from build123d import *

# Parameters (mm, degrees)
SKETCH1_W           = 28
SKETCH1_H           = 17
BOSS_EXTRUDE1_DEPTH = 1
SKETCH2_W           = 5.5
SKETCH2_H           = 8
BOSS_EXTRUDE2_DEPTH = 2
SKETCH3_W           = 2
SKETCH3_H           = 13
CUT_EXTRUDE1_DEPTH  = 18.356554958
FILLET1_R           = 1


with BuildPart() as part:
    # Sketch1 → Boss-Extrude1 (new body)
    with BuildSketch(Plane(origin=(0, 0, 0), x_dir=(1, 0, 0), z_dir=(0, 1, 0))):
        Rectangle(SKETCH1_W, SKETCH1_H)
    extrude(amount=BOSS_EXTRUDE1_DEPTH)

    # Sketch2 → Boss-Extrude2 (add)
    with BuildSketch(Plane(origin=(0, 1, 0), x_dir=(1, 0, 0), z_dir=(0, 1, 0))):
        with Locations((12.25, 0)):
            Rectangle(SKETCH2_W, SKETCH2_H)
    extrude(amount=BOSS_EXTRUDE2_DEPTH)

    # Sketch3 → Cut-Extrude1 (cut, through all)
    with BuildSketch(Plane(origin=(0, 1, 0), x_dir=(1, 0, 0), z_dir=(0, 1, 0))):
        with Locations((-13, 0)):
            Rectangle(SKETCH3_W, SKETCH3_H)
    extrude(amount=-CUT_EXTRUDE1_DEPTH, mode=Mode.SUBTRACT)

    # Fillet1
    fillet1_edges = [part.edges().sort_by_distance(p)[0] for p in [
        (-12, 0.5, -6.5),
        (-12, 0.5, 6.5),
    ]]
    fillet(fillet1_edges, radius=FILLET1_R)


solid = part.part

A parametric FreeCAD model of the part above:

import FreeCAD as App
import Part
import Sketcher
from FreeCAD import Vector
Q = App.Units.Quantity


def edges_at(feature, points):
    """Names of the edges that pass closest to the given points."""
    edges = feature.Shape.Edges
    near = lambda p: min(range(len(edges)), key=lambda i: edges[i].distToShape(Part.Vertex(*p))[0])
    return sorted({f"Edge{near(p) + 1}" for p in points})

doc = App.newDocument("Part")
params = doc.addObject("Spreadsheet::Sheet", "Params")
for row, (alias, value) in enumerate([
    ("sketch1_width", "28 mm"),
    ("sketch1_height", "17 mm"),
    ("pad1_length", "1 mm"),
    ("sketch2_height", "8 mm"),
    ("sketch2_width", "5.5 mm"),
    ("pad2_length", "2 mm"),
    ("sketch3_width", "2 mm"),
    ("sketch3_height", "13 mm"),
    ("fillet_radius", "1 mm"),
], start=1):
    params.set(f"A{row}", alias)
    params.set(f"B{row}", "=" + value)
    params.setAlias(f"B{row}", alias)

body = doc.addObject("PartDesign::Body", "Body")

# Sketch on XZ plane
sketch1 = body.newObject("Sketcher::SketchObject", "Sketch")
sketch1.AttachmentSupport = (doc.getObject("XZ_Plane"), [""])
sketch1.MapMode = "FlatFace"
sketch1.addGeometry([
    Part.LineSegment(Vector(-14, -8, 0), Vector(-14, 8, 0)),
    Part.LineSegment(Vector(-14, 8, 0), Vector(14, 8, 0)),
    Part.LineSegment(Vector(14, 8, 0), Vector(14, -8, 0)),
    Part.LineSegment(Vector(14, -8, 0), Vector(-14, -8, 0)),
], False)
sketch1.addConstraint([
    Sketcher.Constraint("Coincident", 0, 2, 1, 1),
    Sketcher.Constraint("Coincident", 1, 2, 2, 1),
    Sketcher.Constraint("Coincident", 2, 2, 3, 1),
    Sketcher.Constraint("Coincident", 3, 2, 0, 1),
    Sketcher.Constraint("Vertical", 0),
    Sketcher.Constraint("Horizontal", 1),
    Sketcher.Constraint("Vertical", 2),
    Sketcher.Constraint("Horizontal", 3),
    Sketcher.Constraint("Symmetric", 0, 2, 2, 2, -1, 1),
    Sketcher.Constraint("DistanceX", 1, 1, 1, 2, Q("28 mm")),
    Sketcher.Constraint("DistanceY", 0, 1, 0, 2, Q("17 mm")),
])
sketch1.setExpression("Constraints[9]", "Params.sketch1_width")
sketch1.setExpression("Constraints[10]", "Params.sketch1_height")
pad1 = body.newObject("PartDesign::Pad", "Pad")
pad1.Profile = sketch1
pad1.setExpression("Length", "Params.pad1_length")
pad1.Reversed = True

# Sketch on XZ plane
sketch2 = body.newObject("Sketcher::SketchObject", "Sketch001")
sketch2.AttachmentSupport = (doc.getObject("XZ_Plane"), [""])
sketch2.MapMode = "FlatFace"
sketch2.AttachmentOffset = App.Placement(Vector(0, 0, -1), App.Rotation())
sketch2.addGeometry([
    Part.LineSegment(Vector(10, -4, 0), Vector(10, 4, 0)),
    Part.LineSegment(Vector(10, 4, 0), Vector(15, 4, 0)),
    Part.LineSegment(Vector(15, 4, 0), Vector(15, -4, 0)),
    Part.LineSegment(Vector(15, -4, 0), Vector(10, -4, 0)),
], False)
sketch2.addConstraint([
    Sketcher.Constraint("Coincident", 0, 2, 1, 1),
    Sketcher.Constraint("Coincident", 1, 2, 2, 1),
    Sketcher.Constraint("Coincident", 2, 2, 3, 1),
    Sketcher.Constraint("Coincident", 3, 2, 0, 1),
    Sketcher.Constraint("Vertical", 0),
    Sketcher.Constraint("Horizontal", 1),
    Sketcher.Constraint("Vertical", 2),
    Sketcher.Constraint("Horizontal", 3),
    Sketcher.Constraint("DistanceY", 0, 1, 0, 2, Q("8 mm")),
    Sketcher.Constraint("DistanceX", 1, 1, 1, 2, Q("5.5 mm")),
    Sketcher.Constraint("DistanceY", -1, 1, 0, 2, Q("4 mm")),
    Sketcher.Constraint("DistanceX", -1, 1, 1, 2, Q("15 mm")),
])
sketch2.setExpression("Constraints[8]", "Params.sketch2_height")
sketch2.setExpression("Constraints[9]", "Params.sketch2_width")
pad2 = body.newObject("PartDesign::Pad", "Pad001")
pad2.Profile = sketch2
pad2.setExpression("Length", "Params.pad2_length")
pad2.Reversed = True

# Sketch on XZ plane
sketch3 = body.newObject("Sketcher::SketchObject", "Sketch002")
sketch3.AttachmentSupport = (doc.getObject("XZ_Plane"), [""])
sketch3.MapMode = "FlatFace"
sketch3.AttachmentOffset = App.Placement(Vector(0, 0, -1), App.Rotation())
sketch3.addGeometry([
    Part.LineSegment(Vector(-14, -6.5, 0), Vector(-14, 6.5, 0)),
    Part.LineSegment(Vector(-14, 6.5, 0), Vector(-12, 6.5, 0)),
    Part.LineSegment(Vector(-12, 6.5, 0), Vector(-12, -6.5, 0)),
    Part.LineSegment(Vector(-12, -6.5, 0), Vector(-14, -6.5, 0)),
], False)
sketch3.addConstraint([
    Sketcher.Constraint("Coincident", 0, 2, 1, 1),
    Sketcher.Constraint("Coincident", 1, 2, 2, 1),
    Sketcher.Constraint("Coincident", 2, 2, 3, 1),
    Sketcher.Constraint("Coincident", 3, 2, 0, 1),
    Sketcher.Constraint("Vertical", 0),
    Sketcher.Constraint("Horizontal", 1),
    Sketcher.Constraint("Vertical", 2),
    Sketcher.Constraint("Horizontal", 3),
    Sketcher.Constraint("DistanceX", 1, 1, 1, 2, Q("2 mm")),
    Sketcher.Constraint("DistanceY", 0, 1, 0, 2, Q("13 mm")),
    Sketcher.Constraint("DistanceX", 0, 2, -1, 1, Q("14 mm")),
    Sketcher.Constraint("DistanceY", -1, 1, 0, 2, Q("6.5 mm")),
])
sketch3.setExpression("Constraints[8]", "Params.sketch3_width")
sketch3.setExpression("Constraints[9]", "Params.sketch3_height")
pocket1 = body.newObject("PartDesign::Pocket", "Pocket")
pocket1.Profile = sketch3
pocket1.Type = "ThroughAll"
pocket1.Reversed = True
doc.recompute()

fillet = body.newObject("PartDesign::Fillet", "Fillet")
fillet.Base = (pocket1, edges_at(pocket1, [(-12, 0.5, -6.5), (-12, 0.5, 6.5)]))
fillet.setExpression("Radius", "Params.fillet_radius")

doc.recompute()
